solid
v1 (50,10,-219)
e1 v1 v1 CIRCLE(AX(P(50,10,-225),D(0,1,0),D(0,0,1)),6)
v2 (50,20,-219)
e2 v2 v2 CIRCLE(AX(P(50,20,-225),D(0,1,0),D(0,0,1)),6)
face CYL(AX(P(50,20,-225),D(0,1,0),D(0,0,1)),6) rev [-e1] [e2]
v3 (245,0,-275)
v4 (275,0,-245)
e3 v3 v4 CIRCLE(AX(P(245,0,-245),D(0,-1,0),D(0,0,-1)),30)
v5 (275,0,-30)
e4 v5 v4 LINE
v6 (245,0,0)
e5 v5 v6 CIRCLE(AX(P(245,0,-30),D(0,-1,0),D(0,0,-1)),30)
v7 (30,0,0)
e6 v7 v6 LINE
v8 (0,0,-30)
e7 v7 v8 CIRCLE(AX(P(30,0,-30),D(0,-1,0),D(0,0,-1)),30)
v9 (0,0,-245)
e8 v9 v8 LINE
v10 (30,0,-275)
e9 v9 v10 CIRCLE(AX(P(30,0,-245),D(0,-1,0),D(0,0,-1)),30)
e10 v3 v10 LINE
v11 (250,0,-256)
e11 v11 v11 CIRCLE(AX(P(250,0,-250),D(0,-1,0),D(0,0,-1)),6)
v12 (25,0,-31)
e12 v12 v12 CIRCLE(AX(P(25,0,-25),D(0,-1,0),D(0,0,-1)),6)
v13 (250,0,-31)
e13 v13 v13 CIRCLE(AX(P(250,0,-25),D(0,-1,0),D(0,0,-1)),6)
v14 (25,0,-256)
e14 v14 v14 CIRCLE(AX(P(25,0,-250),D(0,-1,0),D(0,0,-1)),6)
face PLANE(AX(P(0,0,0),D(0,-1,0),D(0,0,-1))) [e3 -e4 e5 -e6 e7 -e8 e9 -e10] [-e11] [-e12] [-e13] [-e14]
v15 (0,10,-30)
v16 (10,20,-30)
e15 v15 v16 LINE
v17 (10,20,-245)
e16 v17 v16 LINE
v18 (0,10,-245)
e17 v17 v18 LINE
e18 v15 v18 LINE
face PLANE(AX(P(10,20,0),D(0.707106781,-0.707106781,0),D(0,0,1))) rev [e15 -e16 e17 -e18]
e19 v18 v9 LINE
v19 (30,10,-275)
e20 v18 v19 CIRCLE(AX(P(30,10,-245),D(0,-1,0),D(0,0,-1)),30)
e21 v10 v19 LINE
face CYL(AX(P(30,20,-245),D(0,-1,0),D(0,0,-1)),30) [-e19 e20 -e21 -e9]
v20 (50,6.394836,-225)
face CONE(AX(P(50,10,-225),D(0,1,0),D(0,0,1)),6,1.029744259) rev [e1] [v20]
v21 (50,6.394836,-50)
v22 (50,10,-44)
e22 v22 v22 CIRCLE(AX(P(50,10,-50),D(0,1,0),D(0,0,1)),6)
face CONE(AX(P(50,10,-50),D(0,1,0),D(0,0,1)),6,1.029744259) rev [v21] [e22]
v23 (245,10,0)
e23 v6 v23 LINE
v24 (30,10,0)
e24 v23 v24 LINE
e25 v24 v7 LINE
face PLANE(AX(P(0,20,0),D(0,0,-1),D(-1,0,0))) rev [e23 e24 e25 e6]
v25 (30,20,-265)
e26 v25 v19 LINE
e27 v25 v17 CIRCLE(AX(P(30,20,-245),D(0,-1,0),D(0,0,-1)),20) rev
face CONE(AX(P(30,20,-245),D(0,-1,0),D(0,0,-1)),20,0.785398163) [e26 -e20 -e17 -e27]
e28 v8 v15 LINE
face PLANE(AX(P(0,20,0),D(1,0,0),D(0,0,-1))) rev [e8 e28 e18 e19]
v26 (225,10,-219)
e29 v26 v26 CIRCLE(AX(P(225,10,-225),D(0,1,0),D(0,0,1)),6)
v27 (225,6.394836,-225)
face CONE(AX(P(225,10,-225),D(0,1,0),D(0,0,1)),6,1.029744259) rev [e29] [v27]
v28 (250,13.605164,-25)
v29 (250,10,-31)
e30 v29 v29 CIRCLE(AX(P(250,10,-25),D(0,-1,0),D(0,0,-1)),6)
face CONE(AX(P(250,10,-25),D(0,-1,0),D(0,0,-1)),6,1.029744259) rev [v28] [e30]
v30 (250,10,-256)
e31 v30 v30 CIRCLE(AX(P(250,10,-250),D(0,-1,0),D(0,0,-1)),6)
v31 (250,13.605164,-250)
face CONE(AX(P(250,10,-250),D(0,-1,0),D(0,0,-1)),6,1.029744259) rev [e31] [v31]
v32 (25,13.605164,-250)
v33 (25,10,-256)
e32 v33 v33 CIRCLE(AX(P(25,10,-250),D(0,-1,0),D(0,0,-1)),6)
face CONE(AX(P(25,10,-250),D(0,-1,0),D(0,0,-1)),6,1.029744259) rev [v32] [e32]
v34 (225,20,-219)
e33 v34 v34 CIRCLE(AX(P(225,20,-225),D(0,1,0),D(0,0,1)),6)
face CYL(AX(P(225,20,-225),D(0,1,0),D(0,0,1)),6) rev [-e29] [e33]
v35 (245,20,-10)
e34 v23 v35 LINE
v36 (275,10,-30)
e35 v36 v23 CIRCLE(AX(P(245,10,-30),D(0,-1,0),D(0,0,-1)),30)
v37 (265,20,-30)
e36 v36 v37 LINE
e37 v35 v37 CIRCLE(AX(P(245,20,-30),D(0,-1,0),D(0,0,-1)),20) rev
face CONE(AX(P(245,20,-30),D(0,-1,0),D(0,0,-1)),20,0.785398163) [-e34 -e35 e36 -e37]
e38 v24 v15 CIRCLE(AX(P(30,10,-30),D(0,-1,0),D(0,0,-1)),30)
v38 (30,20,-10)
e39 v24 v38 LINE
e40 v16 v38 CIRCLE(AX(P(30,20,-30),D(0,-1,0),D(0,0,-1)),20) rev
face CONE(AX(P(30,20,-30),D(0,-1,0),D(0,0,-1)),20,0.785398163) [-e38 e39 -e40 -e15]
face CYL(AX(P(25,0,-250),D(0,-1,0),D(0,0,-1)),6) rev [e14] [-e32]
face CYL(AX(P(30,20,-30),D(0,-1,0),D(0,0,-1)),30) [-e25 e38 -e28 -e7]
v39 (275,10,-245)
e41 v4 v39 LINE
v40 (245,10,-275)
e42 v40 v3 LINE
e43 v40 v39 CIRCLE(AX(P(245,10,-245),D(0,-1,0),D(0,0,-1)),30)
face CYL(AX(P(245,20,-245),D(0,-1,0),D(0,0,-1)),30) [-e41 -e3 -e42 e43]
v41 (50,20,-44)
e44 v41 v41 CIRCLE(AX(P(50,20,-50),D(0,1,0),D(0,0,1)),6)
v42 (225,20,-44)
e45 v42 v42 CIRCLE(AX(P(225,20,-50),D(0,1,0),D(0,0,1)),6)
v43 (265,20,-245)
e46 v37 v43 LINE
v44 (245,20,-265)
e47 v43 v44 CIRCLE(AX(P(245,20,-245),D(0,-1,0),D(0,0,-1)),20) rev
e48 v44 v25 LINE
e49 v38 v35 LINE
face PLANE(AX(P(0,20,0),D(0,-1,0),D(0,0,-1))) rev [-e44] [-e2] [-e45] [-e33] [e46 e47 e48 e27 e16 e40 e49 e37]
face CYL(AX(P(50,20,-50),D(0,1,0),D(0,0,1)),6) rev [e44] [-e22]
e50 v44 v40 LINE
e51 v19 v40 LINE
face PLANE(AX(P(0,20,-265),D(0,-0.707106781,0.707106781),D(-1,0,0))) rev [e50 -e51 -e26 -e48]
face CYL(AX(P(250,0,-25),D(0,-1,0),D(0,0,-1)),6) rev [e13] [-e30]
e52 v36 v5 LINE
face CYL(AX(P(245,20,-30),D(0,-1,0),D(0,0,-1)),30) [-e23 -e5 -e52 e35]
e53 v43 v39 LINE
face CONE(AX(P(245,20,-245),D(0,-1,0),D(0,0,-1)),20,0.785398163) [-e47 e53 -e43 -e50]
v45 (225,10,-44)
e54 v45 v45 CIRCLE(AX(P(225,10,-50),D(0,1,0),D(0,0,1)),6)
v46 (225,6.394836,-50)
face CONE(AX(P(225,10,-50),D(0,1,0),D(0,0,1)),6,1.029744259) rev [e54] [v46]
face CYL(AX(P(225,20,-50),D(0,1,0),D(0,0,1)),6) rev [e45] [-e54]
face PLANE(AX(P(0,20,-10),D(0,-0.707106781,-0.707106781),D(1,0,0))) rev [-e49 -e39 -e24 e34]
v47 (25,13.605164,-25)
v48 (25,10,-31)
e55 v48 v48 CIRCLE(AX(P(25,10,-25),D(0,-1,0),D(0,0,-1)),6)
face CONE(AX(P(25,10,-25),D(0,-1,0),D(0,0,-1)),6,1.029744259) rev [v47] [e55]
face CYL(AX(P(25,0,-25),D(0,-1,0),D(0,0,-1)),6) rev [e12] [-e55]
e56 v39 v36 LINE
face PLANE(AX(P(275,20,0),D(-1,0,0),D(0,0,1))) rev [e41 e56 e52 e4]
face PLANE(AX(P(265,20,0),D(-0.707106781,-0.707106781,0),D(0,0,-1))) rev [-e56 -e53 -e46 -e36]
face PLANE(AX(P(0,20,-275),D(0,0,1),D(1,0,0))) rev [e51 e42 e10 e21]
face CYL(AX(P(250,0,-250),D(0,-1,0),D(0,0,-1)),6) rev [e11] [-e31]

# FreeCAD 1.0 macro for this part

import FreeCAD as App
import Part
import Sketcher


def edges_at(feature, points):
    """Names of the edges that pass closest to the given points."""
    edges = feature.Shape.Edges
    near = lambda p: min(range(len(edges)), key=lambda i: edges[i].distToShape(Part.Vertex(*p))[0])
    return sorted({f"Edge{near(p) + 1}" for p in points})


def add_polygon(sketch, points):
    """Adds a closed chain of lines whose ends are joined by coincident constraints."""
    first, n = sketch.GeometryCount, len(points)
    for a, b in zip(points, points[1:] + points[:1]):
        sketch.addGeometry(Part.LineSegment(App.Vector(*a, 0), App.Vector(*b, 0)), False)
    for i in range(n):
        sketch.addConstraint(Sketcher.Constraint("Coincident", first + i, 2, first + (i + 1) % n, 1))

doc = App.newDocument("Part")
params = doc.addObject("Spreadsheet::Sheet", "Params")
for row, (alias, value) in enumerate([
    ("sketch1_width", "275 mm"),
    ("pad1_length", "20 mm"),
    ("fillet_radius", "30 mm"),
    ("chamfer_size", "10 mm"),
    ("sketch2_diameter", "12 mm"),
    ("hole_diameter", "12 mm"),
    ("hole_depth", "10 mm"),
    ("sketch3_diameter", "12 mm"),
    ("hole2_diameter", "12 mm"),
    ("hole2_depth", "10 mm"),
], start=1):
    params.set(f"A{row}", alias)
    params.set(f"B{row}", "=" + value)
    params.setAlias(f"B{row}", alias)

body = doc.addObject("PartDesign::Body", "Body")

# Sketch on XZ plane
sketch1 = doc.addObject("Sketcher::SketchObject", "Sketch")
body.addObject(sketch1)
sketch1.AttachmentSupport = (doc.XZ_Plane, [""])
sketch1.MapMode = "FlatFace"
add_polygon(sketch1, [(0, -275), (0, 0), (275, 0), (275, -275)])  # lines 0-3
sketch1.addConstraint(Sketcher.Constraint("Vertical", 0))
sketch1.addConstraint(Sketcher.Constraint("Horizontal", 1))
sketch1.addConstraint(Sketcher.Constraint("Vertical", 2))
sketch1.addConstraint(Sketcher.Constraint("Horizontal", 3))
sketch1.addConstraint(Sketcher.Constraint("Coincident", 0, 2, -1, 1))
sketch1.addConstraint(Sketcher.Constraint("Equal", 3, 0))
sketch1.addConstraint(Sketcher.Constraint("DistanceX", 1, 1, 1, 2, 275.0))
sketch1.setExpression("Constraints[10]", "Params.sketch1_width")
pad1 = doc.addObject("PartDesign::Pad", "Pad")
body.addObject(pad1)
pad1.Profile = sketch1
pad1.setExpression("Length", "Params.pad1_length")
pad1.Reversed = True
doc.recompute()

fillet = doc.addObject("PartDesign::Fillet", "Fillet")
body.addObject(fillet)
fillet.Base = (pad1, edges_at(pad1, [
    (0, 10, -275),
    (275, 10, -275),
    (275, 10, 0),
    (0, 10, 0),
]))
fillet.setExpression("Radius", "Params.fillet_radius")
doc.recompute()

chamfer = doc.addObject("PartDesign::Chamfer", "Chamfer")
body.addObject(chamfer)
chamfer.Base = (fillet, edges_at(fillet, [
    (0, 20, -137.5),
    (137.5, 20, -275),
    (137.5, 20, 0),
    (275, 20, -137.5),
    (8.787, 20, -8.787),
    (266.213, 20, -8.787),
    (266.213, 20, -266.213),
    (8.787, 20, -266.213),
]))
chamfer.setExpression("Size", "Params.chamfer_size")

# Sketch on XZ plane
sketch2 = doc.addObject("Sketcher::SketchObject", "Sketch001")
body.addObject(sketch2)
sketch2.AttachmentSupport = (doc.XZ_Plane, [""])
sketch2.MapMode = "FlatFace"
sketch2.AttachmentOffset = App.Placement(App.Vector(0, 0, -20), App.Rotation())
sketch2.addGeometry(Part.Circle(App.Vector(50, -50, 0), App.Vector(0, 0, 1), 6), False)
sketch2.addGeometry(Part.Circle(App.Vector(50, -225, 0), App.Vector(0, 0, 1), 6), False)
sketch2.addGeometry(Part.Circle(App.Vector(225, -225, 0), App.Vector(0, 0, 1), 6), False)
sketch2.addGeometry(Part.Circle(App.Vector(225, -50, 0), App.Vector(0, 0, 1), 6), False)
sketch2.addConstraint(Sketcher.Constraint("Equal", 0, 1))
sketch2.addConstraint(Sketcher.Constraint("Equal", 1, 2))
sketch2.addConstraint(Sketcher.Constraint("Equal", 2, 3))
sketch2.addConstraint(Sketcher.Constraint("Horizontal", 1, 3, 2, 3))
sketch2.addConstraint(Sketcher.Constraint("Horizontal", 0, 3, 3, 3))
sketch2.addConstraint(Sketcher.Constraint("Vertical", 0, 3, 1, 3))
sketch2.addConstraint(Sketcher.Constraint("Vertical", 2, 3, 3, 3))
sketch2.addConstraint(Sketcher.Constraint("Diameter", 0, 12.0))
sketch2.addConstraint(Sketcher.Constraint("DistanceX", -1, 1, 0, 3, 50.0))
sketch2.addConstraint(Sketcher.Constraint("DistanceY", 0, 3, -1, 1, 50.0))
sketch2.addConstraint(Sketcher.Constraint("DistanceY", 1, 3, -1, 1, 225.0))
sketch2.addConstraint(Sketcher.Constraint("DistanceX", -1, 1, 2, 3, 225.0))
sketch2.setExpression("Constraints[7]", "Params.sketch2_diameter")
doc.recompute()
hole = doc.addObject("PartDesign::Hole", "Hole")
body.addObject(hole)
hole.Profile = sketch2
hole.ThreadType = "None"
hole.setExpression("Diameter", "Params.hole_diameter")
hole.DepthType = "Dimension"
hole.setExpression("Depth", "Params.hole_depth")
hole.DrillPoint = "Angled"
hole.DrillPointAngle = 118
hole.Reversed = True

# Sketch on XZ plane
sketch3 = doc.addObject("Sketcher::SketchObject", "Sketch002")
body.addObject(sketch3)
sketch3.AttachmentSupport = (doc.XZ_Plane, [""])
sketch3.MapMode = "FlatFace"
sketch3.addGeometry(Part.Circle(App.Vector(25, -25, 0), App.Vector(0, 0, 1), 6), False)
sketch3.addGeometry(Part.Circle(App.Vector(250, -25, 0), App.Vector(0, 0, 1), 6), False)
sketch3.addGeometry(Part.Circle(App.Vector(250, -250, 0), App.Vector(0, 0, 1), 6), False)
sketch3.addGeometry(Part.Circle(App.Vector(25, -250, 0), App.Vector(0, 0, 1), 6), False)
sketch3.addConstraint(Sketcher.Constraint("Equal", 0, 1))
sketch3.addConstraint(Sketcher.Constraint("Equal", 1, 2))
sketch3.addConstraint(Sketcher.Constraint("Equal", 2, 3))
sketch3.addConstraint(Sketcher.Constraint("Horizontal", 0, 3, 1, 3))
sketch3.addConstraint(Sketcher.Constraint("Horizontal", 2, 3, 3, 3))
sketch3.addConstraint(Sketcher.Constraint("Vertical", 1, 3, 2, 3))
sketch3.addConstraint(Sketcher.Constraint("Vertical", 0, 3, 3, 3))
sketch3.addConstraint(Sketcher.Constraint("Diameter", 0, 12.0))
sketch3.addConstraint(Sketcher.Constraint("DistanceX", -1, 1, 0, 3, 25.0))
sketch3.addConstraint(Sketcher.Constraint("DistanceY", 0, 3, -1, 1, 25.0))
sketch3.addConstraint(Sketcher.Constraint("DistanceX", -1, 1, 1, 3, 250.0))
sketch3.addConstraint(Sketcher.Constraint("DistanceY", 2, 3, -1, 1, 250.0))
sketch3.setExpression("Constraints[7]", "Params.sketch3_diameter")
doc.recompute()
hole2 = doc.addObject("PartDesign::Hole", "Hole001")
body.addObject(hole2)
hole2.Profile = sketch3
hole2.ThreadType = "None"
hole2.setExpression("Diameter", "Params.hole2_diameter")
hole2.DepthType = "Dimension"
hole2.setExpression("Depth", "Params.hole2_depth")
hole2.DrillPoint = "Angled"
hole2.DrillPointAngle = 118

doc.recompute()
